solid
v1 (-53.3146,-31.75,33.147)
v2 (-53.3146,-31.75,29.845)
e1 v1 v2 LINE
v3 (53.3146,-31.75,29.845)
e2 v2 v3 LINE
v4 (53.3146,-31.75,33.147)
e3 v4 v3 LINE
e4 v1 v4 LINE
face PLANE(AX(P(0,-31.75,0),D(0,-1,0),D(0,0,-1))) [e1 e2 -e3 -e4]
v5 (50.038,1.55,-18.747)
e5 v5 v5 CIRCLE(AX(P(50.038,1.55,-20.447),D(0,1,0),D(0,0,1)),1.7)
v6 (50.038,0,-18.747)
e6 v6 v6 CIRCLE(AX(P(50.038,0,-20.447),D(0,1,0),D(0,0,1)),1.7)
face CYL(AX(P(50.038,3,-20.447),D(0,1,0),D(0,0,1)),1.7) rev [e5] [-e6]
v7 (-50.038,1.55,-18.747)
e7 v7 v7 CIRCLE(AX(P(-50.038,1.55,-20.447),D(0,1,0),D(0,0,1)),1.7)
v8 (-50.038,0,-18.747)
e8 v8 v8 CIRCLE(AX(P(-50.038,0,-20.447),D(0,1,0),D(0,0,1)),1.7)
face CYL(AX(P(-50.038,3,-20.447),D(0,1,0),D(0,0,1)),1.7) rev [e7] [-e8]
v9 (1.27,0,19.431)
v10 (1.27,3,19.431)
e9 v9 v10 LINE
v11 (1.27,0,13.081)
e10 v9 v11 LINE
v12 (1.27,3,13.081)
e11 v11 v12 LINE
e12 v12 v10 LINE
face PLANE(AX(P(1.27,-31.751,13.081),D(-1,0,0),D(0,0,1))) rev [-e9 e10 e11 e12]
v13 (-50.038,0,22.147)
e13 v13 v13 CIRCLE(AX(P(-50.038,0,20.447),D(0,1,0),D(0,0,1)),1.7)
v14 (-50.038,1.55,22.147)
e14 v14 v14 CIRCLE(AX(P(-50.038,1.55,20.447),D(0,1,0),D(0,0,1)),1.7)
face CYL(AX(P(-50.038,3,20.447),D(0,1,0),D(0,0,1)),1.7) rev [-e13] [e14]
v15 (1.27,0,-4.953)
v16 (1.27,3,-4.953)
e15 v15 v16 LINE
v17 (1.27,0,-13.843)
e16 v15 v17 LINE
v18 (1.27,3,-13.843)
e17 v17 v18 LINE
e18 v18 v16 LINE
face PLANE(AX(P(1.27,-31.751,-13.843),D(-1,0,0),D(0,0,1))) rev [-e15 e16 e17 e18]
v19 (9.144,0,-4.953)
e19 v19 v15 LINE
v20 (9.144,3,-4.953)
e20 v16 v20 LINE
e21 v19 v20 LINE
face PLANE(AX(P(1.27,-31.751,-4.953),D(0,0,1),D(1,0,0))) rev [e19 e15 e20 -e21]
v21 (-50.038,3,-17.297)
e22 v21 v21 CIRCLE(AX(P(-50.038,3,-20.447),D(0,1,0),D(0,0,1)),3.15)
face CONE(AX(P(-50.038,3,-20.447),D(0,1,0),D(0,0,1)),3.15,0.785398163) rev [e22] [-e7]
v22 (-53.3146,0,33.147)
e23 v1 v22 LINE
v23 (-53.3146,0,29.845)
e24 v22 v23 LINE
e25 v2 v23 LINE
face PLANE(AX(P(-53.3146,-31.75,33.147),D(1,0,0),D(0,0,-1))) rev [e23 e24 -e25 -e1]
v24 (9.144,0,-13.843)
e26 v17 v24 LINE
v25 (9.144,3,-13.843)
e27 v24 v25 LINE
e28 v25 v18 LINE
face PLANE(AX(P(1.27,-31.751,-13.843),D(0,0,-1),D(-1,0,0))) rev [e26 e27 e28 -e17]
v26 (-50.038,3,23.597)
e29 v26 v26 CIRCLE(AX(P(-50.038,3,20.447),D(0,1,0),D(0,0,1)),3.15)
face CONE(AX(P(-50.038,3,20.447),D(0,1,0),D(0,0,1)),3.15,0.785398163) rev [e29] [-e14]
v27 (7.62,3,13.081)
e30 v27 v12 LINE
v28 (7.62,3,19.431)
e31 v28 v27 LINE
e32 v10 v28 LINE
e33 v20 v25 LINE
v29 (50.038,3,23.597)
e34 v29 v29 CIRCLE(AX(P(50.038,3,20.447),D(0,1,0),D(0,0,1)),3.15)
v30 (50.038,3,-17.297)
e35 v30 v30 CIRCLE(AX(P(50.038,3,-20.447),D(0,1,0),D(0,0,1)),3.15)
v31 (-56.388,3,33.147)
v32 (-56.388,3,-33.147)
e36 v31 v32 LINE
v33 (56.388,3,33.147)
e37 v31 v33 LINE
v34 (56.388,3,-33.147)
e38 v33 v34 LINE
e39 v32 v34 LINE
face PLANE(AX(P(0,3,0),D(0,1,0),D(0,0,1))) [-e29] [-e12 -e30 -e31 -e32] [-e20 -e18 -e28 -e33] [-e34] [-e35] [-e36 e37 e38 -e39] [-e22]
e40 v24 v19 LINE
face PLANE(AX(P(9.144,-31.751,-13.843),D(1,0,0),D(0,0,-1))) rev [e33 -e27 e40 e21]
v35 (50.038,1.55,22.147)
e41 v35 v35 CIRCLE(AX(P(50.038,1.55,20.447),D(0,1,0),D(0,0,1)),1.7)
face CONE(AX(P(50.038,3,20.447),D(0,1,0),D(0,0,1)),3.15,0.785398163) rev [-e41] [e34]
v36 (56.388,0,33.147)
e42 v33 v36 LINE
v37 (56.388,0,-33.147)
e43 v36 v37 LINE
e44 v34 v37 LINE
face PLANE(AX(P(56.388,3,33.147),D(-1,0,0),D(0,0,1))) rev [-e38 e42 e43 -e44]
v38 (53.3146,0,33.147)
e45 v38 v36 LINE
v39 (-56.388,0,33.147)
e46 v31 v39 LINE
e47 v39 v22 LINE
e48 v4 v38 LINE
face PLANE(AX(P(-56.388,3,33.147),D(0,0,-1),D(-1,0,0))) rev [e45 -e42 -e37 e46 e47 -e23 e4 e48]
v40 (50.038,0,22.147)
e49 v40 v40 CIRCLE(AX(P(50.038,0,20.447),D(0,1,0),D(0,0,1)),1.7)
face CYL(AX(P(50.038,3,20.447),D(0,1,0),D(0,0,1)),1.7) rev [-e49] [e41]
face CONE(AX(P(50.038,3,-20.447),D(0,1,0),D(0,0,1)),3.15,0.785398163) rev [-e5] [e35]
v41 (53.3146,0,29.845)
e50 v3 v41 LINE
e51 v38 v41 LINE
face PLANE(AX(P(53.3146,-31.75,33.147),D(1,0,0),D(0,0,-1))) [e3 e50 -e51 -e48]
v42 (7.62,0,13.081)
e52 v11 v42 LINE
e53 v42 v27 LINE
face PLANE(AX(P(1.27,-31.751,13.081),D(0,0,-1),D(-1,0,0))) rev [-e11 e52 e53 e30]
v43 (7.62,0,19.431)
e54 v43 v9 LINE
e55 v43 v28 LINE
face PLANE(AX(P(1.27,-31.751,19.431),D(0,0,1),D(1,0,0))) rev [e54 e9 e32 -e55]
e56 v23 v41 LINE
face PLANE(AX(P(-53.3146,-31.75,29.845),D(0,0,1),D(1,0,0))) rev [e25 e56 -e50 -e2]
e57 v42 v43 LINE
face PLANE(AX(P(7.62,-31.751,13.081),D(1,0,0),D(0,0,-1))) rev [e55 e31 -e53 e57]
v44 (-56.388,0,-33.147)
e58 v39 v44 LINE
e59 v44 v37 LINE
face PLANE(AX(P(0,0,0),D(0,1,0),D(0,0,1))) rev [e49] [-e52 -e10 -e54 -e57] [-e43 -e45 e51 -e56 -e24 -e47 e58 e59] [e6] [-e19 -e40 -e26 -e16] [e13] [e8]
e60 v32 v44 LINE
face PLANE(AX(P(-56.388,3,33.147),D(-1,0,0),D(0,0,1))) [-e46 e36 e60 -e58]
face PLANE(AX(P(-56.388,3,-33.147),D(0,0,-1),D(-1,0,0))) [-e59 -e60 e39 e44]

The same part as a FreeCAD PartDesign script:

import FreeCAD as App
import Part
import Sketcher
Q = App.Units.Quantity


def add_polygon(sketch, points):
    """Adds a closed chain of lines whose ends are joined by coincident constraints."""
    first, n = sketch.GeometryCount, len(points)
    for a, b in zip(points, points[1:] + points[:1]):
        sketch.addGeometry(Part.LineSegment(App.Vector(*a, 0), App.Vector(*b, 0)), False)
    for i in range(n):
        sketch.addConstraint(Sketcher.Constraint("Coincident", first + i, 2, first + (i + 1) % n, 1))

doc = App.newDocument("Part")
body = doc.addObject("PartDesign::Body", "Body")

# Sketch on XZ plane
sketch1 = doc.addObject("Sketcher::SketchObject", "Sketch")
body.addObject(sketch1)
sketch1.AttachmentSupport = (doc.XZ_Plane, [""])
sketch1.MapMode = "FlatFace"
add_polygon(sketch1, [(-56.388, -33.147), (-56.388, 33.147), (56.388, 33.147), (56.388, -33.147)])  # lines 0-3
sketch1.addConstraint(Sketcher.Constraint("Vertical", 0))
sketch1.addConstraint(Sketcher.Constraint("Horizontal", 1))
sketch1.addConstraint(Sketcher.Constraint("Vertical", 2))
sketch1.addConstraint(Sketcher.Constraint("Horizontal", 3))
sketch1.addConstraint(Sketcher.Constraint("Symmetric", 0, 2, 2, 2, -1, 1))
sketch1.addConstraint(Sketcher.Constraint("DistanceX", 1, 1, 1, 2, Q("4.44 in")))
sketch1.addConstraint(Sketcher.Constraint("DistanceY", 0, 1, 0, 2, Q("2.61 in")))
pad1 = doc.addObject("PartDesign::Pad", "Pad")
body.addObject(pad1)
pad1.Profile = sketch1
pad1.Length = 3
pad1.Reversed = True

# Sketch on YZ plane
sketch2 = doc.addObject("Sketcher::SketchObject", "Sketch001")
body.addObject(sketch2)
sketch2.AttachmentSupport = (doc.YZ_Plane, [""])
sketch2.MapMode = "FlatFace"
sketch2.AttachmentOffset = App.Placement(App.Vector(0, 0, -1.97 * 25.4), App.Rotation())
add_polygon(sketch2, [(0, -20.447), (3, -20.447), (3, -17.297), (1.55, -18.747), (0, -18.747)])  # lines 0-4
sketch2.addGeometry(Part.LineSegment(App.Vector(3, -20.447, 0), App.Vector(0, -20.447, 0)), True)  # axis
sketch2.addConstraint(Sketcher.Constraint("Horizontal", 0))
sketch2.addConstraint(Sketcher.Constraint("Vertical", 1))
sketch2.addConstraint(Sketcher.Constraint("Horizontal", 3))
sketch2.addConstraint(Sketcher.Constraint("Vertical", 4))
sketch2.addConstraint(Sketcher.Constraint("Horizontal", 5))
sketch2.addConstraint(Sketcher.Constraint("Coincident", 5, 1, 0, 2))
sketch2.addConstraint(Sketcher.Constraint("PointOnObject", 3, 2, -2))
sketch2.addConstraint(Sketcher.Constraint("PointOnObject", 5, 2, -2))
sketch2.addConstraint(Sketcher.Constraint("Angle", 2, Q("-135 deg")))
sketch2.addConstraint(Sketcher.Constraint("DistanceY", 0, 2, -1, 1, Q("0.805 in")))
sketch2.addConstraint(Sketcher.Constraint("DistanceX", 0, 1, 0, 2, 3.0))
sketch2.addConstraint(Sketcher.Constraint("DistanceX", 3, 2, 3, 1, 1.55))
sketch2.addConstraint(Sketcher.Constraint("DistanceY", 1, 1, 1, 2, 3.15))
groove = doc.addObject("PartDesign::Groove", "Groove")
body.addObject(groove)
groove.Profile = sketch2
groove.ReferenceAxis = (sketch2, ["Axis0"])
groove.Angle = 360
doc.recompute()

linearpattern = doc.addObject("PartDesign::LinearPattern", "LinearPattern")
body.addObject(linearpattern)
linearpattern.Originals = [groove]
linearpattern.Direction = (doc.Z_Axis, [""])
linearpattern.Mode = "offset"
linearpattern.Offset = Q("1.61 in")
linearpattern.Occurrences = 2
body.Tip = linearpattern
doc.recompute()

datumline = doc.addObject("PartDesign::Line", "DatumLine")
body.addObject(datumline)
datumline.Placement = App.Placement(App.Vector(0, 0, 0), App.Rotation(App.Vector(0, 0, 1), App.Vector(0.925696585, 0, 0.378266879)))
linearpattern2 = doc.addObject("PartDesign::LinearPattern", "LinearPattern001")
body.addObject(linearpattern2)
linearpattern2.Originals = [groove]
linearpattern2.Direction = (datumline, [""])
linearpattern2.Mode = "offset"
linearpattern2.Offset = 108.108857
linearpattern2.Occurrences = 2
body.Tip = linearpattern2
doc.recompute()

linearpattern3 = doc.addObject("PartDesign::LinearPattern", "LinearPattern002")
body.addObject(linearpattern3)
linearpattern3.Originals = [groove]
linearpattern3.Direction = (doc.X_Axis, [""])
linearpattern3.Mode = "offset"
linearpattern3.Offset = Q("3.94 in")
linearpattern3.Occurrences = 2
body.Tip = linearpattern3

# Sketch on XZ plane
sketch3 = doc.addObject("Sketcher::SketchObject", "Sketch002")
body.addObject(sketch3)
sketch3.AttachmentSupport = (doc.XZ_Plane, [""])
sketch3.MapMode = "FlatFace"
add_polygon(sketch3, [(-53.3146, 33.147), (-53.3146, 29.845), (53.3146, 29.845), (53.3146, 33.147)])  # lines 0-3
sketch3.addConstraint(Sketcher.Constraint("Vertical", 0))
sketch3.addConstraint(Sketcher.Constraint("Horizontal", 1))
sketch3.addConstraint(Sketcher.Constraint("Vertical", 2))
sketch3.addConstraint(Sketcher.Constraint("Horizontal", 3))
sketch3.addConstraint(Sketcher.Constraint("DistanceY", 0, 2, 0, 1, Q("0.13 in")))
sketch3.addConstraint(Sketcher.Constraint("DistanceX", 1, 1, 1, 2, Q("4.198 in")))
sketch3.addConstraint(Sketcher.Constraint("DistanceX", 0, 2, -1, 1, Q("2.099 in")))
sketch3.addConstraint(Sketcher.Constraint("DistanceY", -1, 1, 0, 2, Q("1.175 in")))
pad2 = doc.addObject("PartDesign::Pad", "Pad001")
body.addObject(pad2)
pad2.Profile = sketch3
pad2.Length = Q("1.25 in")

# Sketch on XZ plane
sketch4 = doc.addObject("Sketcher::SketchObject", "Sketch003")
body.addObject(sketch4)
sketch4.AttachmentSupport = (doc.XZ_Plane, [""])
sketch4.MapMode = "FlatFace"
sketch4.AttachmentOffset = App.Placement(App.Vector(0, 0, -3), App.Rotation())
add_polygon(sketch4, [(1.27, 13.081), (1.27, 19.431), (7.62, 19.431), (7.62, 13.081)])  # lines 0-3
sketch4.addConstraint(Sketcher.Constraint("Vertical", 0))
sketch4.addConstraint(Sketcher.Constraint("Horizontal", 1))
sketch4.addConstraint(Sketcher.Constraint("Vertical", 2))
sketch4.addConstraint(Sketcher.Constraint("Horizontal", 3))
sketch4.addConstraint(Sketcher.Constraint("Equal", 3, 0))
sketch4.addConstraint(Sketcher.Constraint("DistanceX", 1, 1, 1, 2, Q("0.25 in")))
sketch4.addConstraint(Sketcher.Constraint("DistanceX", -1, 1, 1, 2, Q("0.3 in")))
sketch4.addConstraint(Sketcher.Constraint("DistanceY", -1, 1, 0, 2, Q("0.765 in")))
pocket1 = doc.addObject("PartDesign::Pocket", "Pocket")
body.addObject(pocket1)
pocket1.Profile = sketch4
pocket1.Type = "UpToFirst"
pocket1.Reversed = True

# Sketch on XZ plane
sketch5 = doc.addObject("Sketcher::SketchObject", "Sketch004")
body.addObject(sketch5)
sketch5.AttachmentSupport = (doc.XZ_Plane, [""])
sketch5.MapMode = "FlatFace"
sketch5.AttachmentOffset = App.Placement(App.Vector(0, 0, -3), App.Rotation())
add_polygon(sketch5, [(1.27, -13.843), (1.27, -4.953), (9.144, -4.953), (9.144, -13.843)])  # lines 0-3
sketch5.addConstraint(Sketcher.Constraint("Vertical", 0))
sketch5.addConstraint(Sketcher.Constraint("Horizontal", 1))
sketch5.addConstraint(Sketcher.Constraint("Vertical", 2))
sketch5.addConstraint(Sketcher.Constraint("Horizontal", 3))
sketch5.addConstraint(Sketcher.Constraint("DistanceX", 1, 1, 1, 2, Q("0.31 in")))
sketch5.addConstraint(Sketcher.Constraint("DistanceY", 0, 1, 0, 2, Q("0.35 in")))
sketch5.addConstraint(Sketcher.Constraint("DistanceX", -1, 1, 0, 2, Q("0.05 in")))
sketch5.addConstraint(Sketcher.Constraint("DistanceY", 0, 2, -1, 1, Q("0.195 in")))
pocket2 = doc.addObject("PartDesign::Pocket", "Pocket001")
body.addObject(pocket2)
pocket2.Profile = sketch5
pocket2.Type = "UpToFirst"
pocket2.Reversed = True

doc.recompute()
